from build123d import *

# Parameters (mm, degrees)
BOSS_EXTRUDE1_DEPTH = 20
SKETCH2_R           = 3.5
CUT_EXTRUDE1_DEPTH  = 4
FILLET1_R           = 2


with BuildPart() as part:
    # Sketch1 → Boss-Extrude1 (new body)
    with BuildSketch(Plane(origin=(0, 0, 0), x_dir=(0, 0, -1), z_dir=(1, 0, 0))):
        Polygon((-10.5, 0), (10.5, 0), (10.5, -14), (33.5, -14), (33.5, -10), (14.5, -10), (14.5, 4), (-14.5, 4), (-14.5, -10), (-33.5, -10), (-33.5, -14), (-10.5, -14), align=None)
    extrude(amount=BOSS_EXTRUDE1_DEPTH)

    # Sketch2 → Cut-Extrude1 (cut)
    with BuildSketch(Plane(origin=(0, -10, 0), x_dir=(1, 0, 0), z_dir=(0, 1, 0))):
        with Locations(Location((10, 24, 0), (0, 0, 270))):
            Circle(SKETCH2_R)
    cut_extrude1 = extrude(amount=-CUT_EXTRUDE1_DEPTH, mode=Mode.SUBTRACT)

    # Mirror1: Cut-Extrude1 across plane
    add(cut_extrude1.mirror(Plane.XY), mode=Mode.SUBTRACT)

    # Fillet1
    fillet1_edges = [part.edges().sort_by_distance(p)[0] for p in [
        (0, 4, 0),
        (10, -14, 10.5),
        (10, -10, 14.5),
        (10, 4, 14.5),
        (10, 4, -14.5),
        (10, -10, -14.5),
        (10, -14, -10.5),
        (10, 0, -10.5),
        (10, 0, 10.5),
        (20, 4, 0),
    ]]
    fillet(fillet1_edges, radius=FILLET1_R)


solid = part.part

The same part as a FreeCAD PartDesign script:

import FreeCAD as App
import Part
import Sketcher

V = App.Vector
Q = App.Units.Quantity


def edges_at(feature, points):
    """Names of the edges that pass closest to the given points."""
    edges = feature.Shape.Edges
    near = lambda p: min(range(len(edges)), key=lambda i: edges[i].distToShape(Part.Vertex(*p))[0])
    return sorted({f"Edge{near(p) + 1}" for p in points})


def add_polygon(sketch, points):
    """Adds a closed chain of lines whose ends are joined by coincident constraints."""
    first, n = sketch.GeometryCount, len(points)
    for a, b in zip(points, points[1:] + points[:1]):
        sketch.addGeometry(Part.LineSegment(App.Vector(*a, 0), App.Vector(*b, 0)), False)
    for i in range(n):
        sketch.addConstraint(Sketcher.Constraint("Coincident", first + i, 2, first + (i + 1) % n, 1))

doc = App.newDocument("Part")
body = doc.addObject("PartDesign::Body", "Body")

sketch1 = body.newObject("Sketcher::SketchObject", "Sketch")
sketch1.AttachmentSupport = (doc.getObject("YZ_Plane"), [""])
sketch1.MapMode = "FlatFace"
add_polygon(sketch1, [(0, 10.5), (0, -10.5), (-14, -10.5), (-14, -33.5), (-10, -33.5), (-10, -14.5), (4, -14.5), (4, 14.5), (-10, 14.5), (-10, 33.5), (-14, 33.5), (-14, 10.5)])
sketch1.addConstraint([
    Sketcher.Constraint("Vertical", 0),
    Sketcher.Constraint("Horizontal", 1),
    Sketcher.Constraint("Vertical", 2),
    Sketcher.Constraint("Horizontal", 3),
    Sketcher.Constraint("Vertical", 4),
    Sketcher.Constraint("Horizontal", 5),
    Sketcher.Constraint("Vertical", 6),
    Sketcher.Constraint("Horizontal", 7),
    Sketcher.Constraint("Vertical", 8),
    Sketcher.Constraint("Horizontal", 9),
    Sketcher.Constraint("Vertical", 10),
    Sketcher.Constraint("Horizontal", 11),
    Sketcher.Constraint("Symmetric", 0, 2, 11, 2, -1, 1),
    Sketcher.Constraint("Symmetric", 4, 2, 7, 2, -1),
    Sketcher.Constraint("Symmetric", 2, 2, 9, 2, -1),
    Sketcher.Constraint("Equal", 1, 5),
    Sketcher.Constraint("DistanceX", 1, 2, 1, 1, Q("14 mm")),
    Sketcher.Constraint("DistanceX", 3, 1, 3, 2, Q("4 mm")),
    Sketcher.Constraint("DistanceY", 0, 2, 0, 1, Q("21 mm")),
    Sketcher.Constraint("DistanceY", 2, 2, 2, 1, Q("23 mm")),
    Sketcher.Constraint("DistanceY", 4, 1, 4, 2, Q("19 mm")),
])
pad1 = body.newObject("PartDesign::Pad", "Pad")
pad1.Profile = sketch1
pad1.Length = 20

sketch2 = body.newObject("Sketcher::SketchObject", "Sketch001")
sketch2.AttachmentSupport = (doc.getObject("XZ_Plane"), [""])
sketch2.MapMode = "FlatFace"
sketch2.AttachmentOffset = App.Placement(V(0, 0, 10), App.Rotation())
sketch2.addGeometry(Part.Circle(V(10, -24, 0), V(0, 0, 1), 3.5), False)
sketch2.addConstraint([
    Sketcher.Constraint("Diameter", 0, Q("7 mm")),
    Sketcher.Constraint("DistanceX", -1, 1, 0, 3, Q("10 mm")),
    Sketcher.Constraint("DistanceY", 0, 3, -1, 1, Q("24 mm")),
])
pocket1 = body.newObject("PartDesign::Pocket", "Pocket")
pocket1.Profile = sketch2
pocket1.Length = 4
pocket1.Reversed = True
doc.recompute()

mirrored = body.newObject("PartDesign::Mirrored", "Mirrored")
mirrored.Originals = [pocket1]
mirrored.MirrorPlane = (doc.getObject("XY_Plane"), [""])
body.Tip = mirrored
doc.recompute()

fillet = body.newObject("PartDesign::Fillet", "Fillet")
fillet.Base = (mirrored, edges_at(mirrored, [
    (0, 4, 0),
    (10, -14, 10.5),
    (10, -10, 14.5),
    (10, 4, 14.5),
    (10, 4, -14.5),
    (10, -10, -14.5),
    (10, -14, -10.5),
    (10, 0, -10.5),
    (10, 0, 10.5),
    (20, 4, 0),
]))
fillet.Radius = 2

doc.recompute()
